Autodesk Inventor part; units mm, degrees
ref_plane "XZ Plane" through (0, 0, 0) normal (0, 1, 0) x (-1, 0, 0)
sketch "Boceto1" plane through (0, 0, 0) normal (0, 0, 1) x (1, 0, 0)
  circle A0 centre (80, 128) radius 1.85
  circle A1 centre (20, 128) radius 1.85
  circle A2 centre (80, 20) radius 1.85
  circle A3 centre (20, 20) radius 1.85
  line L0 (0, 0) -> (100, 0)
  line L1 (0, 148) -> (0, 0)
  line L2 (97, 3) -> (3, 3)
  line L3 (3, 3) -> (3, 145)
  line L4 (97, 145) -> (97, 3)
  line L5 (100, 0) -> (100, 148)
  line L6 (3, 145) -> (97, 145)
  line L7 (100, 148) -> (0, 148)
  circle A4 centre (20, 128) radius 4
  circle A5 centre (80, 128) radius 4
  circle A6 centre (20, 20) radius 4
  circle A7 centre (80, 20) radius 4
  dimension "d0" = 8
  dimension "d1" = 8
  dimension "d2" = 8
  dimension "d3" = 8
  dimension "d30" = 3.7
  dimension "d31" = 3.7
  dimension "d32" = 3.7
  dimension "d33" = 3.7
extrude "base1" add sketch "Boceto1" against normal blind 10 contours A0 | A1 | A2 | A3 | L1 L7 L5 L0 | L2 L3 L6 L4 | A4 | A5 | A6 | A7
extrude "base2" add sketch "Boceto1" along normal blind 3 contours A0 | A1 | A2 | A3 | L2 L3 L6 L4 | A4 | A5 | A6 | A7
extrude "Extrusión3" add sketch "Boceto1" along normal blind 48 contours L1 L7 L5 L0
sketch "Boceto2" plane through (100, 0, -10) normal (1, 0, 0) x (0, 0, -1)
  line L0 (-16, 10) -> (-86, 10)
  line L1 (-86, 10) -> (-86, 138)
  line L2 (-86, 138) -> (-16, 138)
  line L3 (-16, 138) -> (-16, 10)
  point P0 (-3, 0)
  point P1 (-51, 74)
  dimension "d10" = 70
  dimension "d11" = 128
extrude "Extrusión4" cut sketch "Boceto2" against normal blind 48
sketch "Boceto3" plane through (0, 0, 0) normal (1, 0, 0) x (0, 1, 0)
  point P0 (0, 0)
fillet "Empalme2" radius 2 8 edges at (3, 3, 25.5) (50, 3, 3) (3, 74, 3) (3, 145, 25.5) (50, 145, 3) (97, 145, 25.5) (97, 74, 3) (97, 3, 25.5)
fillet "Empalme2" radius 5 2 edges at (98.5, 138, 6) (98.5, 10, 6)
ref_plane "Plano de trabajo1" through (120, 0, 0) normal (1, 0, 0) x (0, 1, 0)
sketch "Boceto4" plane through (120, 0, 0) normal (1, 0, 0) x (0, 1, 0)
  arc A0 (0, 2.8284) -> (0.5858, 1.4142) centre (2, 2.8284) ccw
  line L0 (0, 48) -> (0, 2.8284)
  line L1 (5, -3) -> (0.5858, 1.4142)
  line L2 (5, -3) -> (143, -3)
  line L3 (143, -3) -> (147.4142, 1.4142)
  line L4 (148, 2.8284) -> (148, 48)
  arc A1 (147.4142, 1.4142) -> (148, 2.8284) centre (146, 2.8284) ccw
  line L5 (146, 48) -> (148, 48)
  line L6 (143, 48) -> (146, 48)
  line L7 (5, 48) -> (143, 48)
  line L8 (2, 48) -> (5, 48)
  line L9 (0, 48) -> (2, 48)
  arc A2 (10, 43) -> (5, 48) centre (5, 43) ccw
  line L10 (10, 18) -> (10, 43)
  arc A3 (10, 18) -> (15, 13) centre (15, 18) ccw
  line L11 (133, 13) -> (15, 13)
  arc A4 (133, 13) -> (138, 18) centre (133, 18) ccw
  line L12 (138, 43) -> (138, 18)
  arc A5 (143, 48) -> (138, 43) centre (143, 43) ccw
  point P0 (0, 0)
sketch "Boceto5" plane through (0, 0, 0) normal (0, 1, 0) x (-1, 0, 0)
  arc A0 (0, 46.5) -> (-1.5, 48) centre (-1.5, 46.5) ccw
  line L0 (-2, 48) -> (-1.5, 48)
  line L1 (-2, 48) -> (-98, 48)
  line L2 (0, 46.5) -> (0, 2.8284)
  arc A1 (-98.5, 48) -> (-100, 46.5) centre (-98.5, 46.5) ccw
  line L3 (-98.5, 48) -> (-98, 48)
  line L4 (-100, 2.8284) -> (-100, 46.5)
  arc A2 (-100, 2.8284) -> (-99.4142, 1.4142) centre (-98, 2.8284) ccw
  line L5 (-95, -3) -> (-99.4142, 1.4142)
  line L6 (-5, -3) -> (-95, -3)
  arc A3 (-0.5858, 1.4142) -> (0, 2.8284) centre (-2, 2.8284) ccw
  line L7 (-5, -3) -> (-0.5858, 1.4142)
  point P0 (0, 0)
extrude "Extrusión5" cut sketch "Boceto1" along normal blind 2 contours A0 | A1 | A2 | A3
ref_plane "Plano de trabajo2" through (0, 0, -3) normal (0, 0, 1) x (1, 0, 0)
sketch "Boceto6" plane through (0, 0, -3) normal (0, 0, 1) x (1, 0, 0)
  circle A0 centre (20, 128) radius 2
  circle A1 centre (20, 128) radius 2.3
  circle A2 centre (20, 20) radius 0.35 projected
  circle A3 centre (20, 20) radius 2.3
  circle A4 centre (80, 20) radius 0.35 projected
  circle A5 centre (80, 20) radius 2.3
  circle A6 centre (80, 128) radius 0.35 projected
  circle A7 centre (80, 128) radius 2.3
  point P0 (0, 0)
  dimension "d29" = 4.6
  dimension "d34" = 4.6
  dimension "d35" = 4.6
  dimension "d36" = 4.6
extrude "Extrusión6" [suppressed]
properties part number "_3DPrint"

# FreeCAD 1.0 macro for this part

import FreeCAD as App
import Part
import Sketcher
from FreeCAD import Vector


def edges_at(feature, points):
    """Names of the edges that pass closest to the given points."""
    edges = feature.Shape.Edges
    near = lambda p: min(range(len(edges)), key=lambda i: edges[i].distToShape(Part.Vertex(*p))[0])
    return sorted({f"Edge{near(p) + 1}" for p in points})

doc = App.newDocument("Part")
body = doc.addObject("PartDesign::Body", "Body")

sketch1 = doc.addObject("Sketcher::SketchObject", "Sketch")
body.addObject(sketch1)
sketch1.AttachmentSupport = (doc.XY_Plane, [""])
sketch1.MapMode = "FlatFace"
sketch1.addGeometry(Part.LineSegment(Vector(0, 148, 0), Vector(0, 0, 0)), False)
sketch1.addGeometry(Part.LineSegment(Vector(0, 0, 0), Vector(100, 0, 0)), False)
sketch1.addGeometry(Part.LineSegment(Vector(100, 0, 0), Vector(100, 148, 0)), False)
sketch1.addGeometry(Part.LineSegment(Vector(100, 148, 0), Vector(0, 148, 0)), False)
sketch1.addConstraint(Sketcher.Constraint("Coincident", 0, 2, 1, 1))
sketch1.addConstraint(Sketcher.Constraint("Coincident", 1, 2, 2, 1))
sketch1.addConstraint(Sketcher.Constraint("Coincident", 2, 2, 3, 1))
sketch1.addConstraint(Sketcher.Constraint("Coincident", 3, 2, 0, 1))
sketch1.addConstraint(Sketcher.Constraint("Vertical", 0))
sketch1.addConstraint(Sketcher.Constraint("Horizontal", 1))
sketch1.addConstraint(Sketcher.Constraint("Vertical", 2))
sketch1.addConstraint(Sketcher.Constraint("Horizontal", 3))
sketch1.addConstraint(Sketcher.Constraint("Coincident", 0, 2, -1, 1))
sketch1.addConstraint(Sketcher.Constraint("DistanceX", 1, 1, 1, 2, 100.0))
sketch1.addConstraint(Sketcher.Constraint("DistanceY", 0, 2, 0, 1, 148.0))
pad1 = doc.addObject("PartDesign::Pad", "Pad")
body.addObject(pad1)
pad1.Profile = sketch1
pad1.Length = 10
pad1.Reversed = True

sketch2 = doc.addObject("Sketcher::SketchObject", "Sketch001")
body.addObject(sketch2)
sketch2.AttachmentSupport = (doc.XY_Plane, [""])
sketch2.MapMode = "FlatFace"
sketch2.addGeometry(Part.LineSegment(Vector(3, 3, 0), Vector(97, 3, 0)), False)
sketch2.addGeometry(Part.LineSegment(Vector(97, 3, 0), Vector(97, 145, 0)), False)
sketch2.addGeometry(Part.LineSegment(Vector(97, 145, 0), Vector(3, 145, 0)), False)
sketch2.addGeometry(Part.LineSegment(Vector(3, 145, 0), Vector(3, 3, 0)), False)
sketch2.addConstraint(Sketcher.Constraint("Coincident", 0, 2, 1, 1))
sketch2.addConstraint(Sketcher.Constraint("Coincident", 1, 2, 2, 1))
sketch2.addConstraint(Sketcher.Constraint("Coincident", 2, 2, 3, 1))
sketch2.addConstraint(Sketcher.Constraint("Coincident", 3, 2, 0, 1))
sketch2.addConstraint(Sketcher.Constraint("Horizontal", 0))
sketch2.addConstraint(Sketcher.Constraint("Vertical", 1))
sketch2.addConstraint(Sketcher.Constraint("Horizontal", 2))
sketch2.addConstraint(Sketcher.Constraint("Vertical", 3))
sketch2.addConstraint(Sketcher.Constraint("DistanceX", 0, 1, 0, 2, 94.0))
sketch2.addConstraint(Sketcher.Constraint("DistanceY", 1, 1, 1, 2, 142.0))
sketch2.addConstraint(Sketcher.Constraint("DistanceX", -1, 1, 0, 2, 97.0))
sketch2.addConstraint(Sketcher.Constraint("DistanceY", -1, 1, 0, 2, 3.0))
pad2 = doc.addObject("PartDesign::Pad", "Pad001")
body.addObject(pad2)
pad2.Profile = sketch2
pad2.Length = 3

sketch3 = doc.addObject("Sketcher::SketchObject", "Sketch002")
body.addObject(sketch3)
sketch3.AttachmentSupport = (doc.XY_Plane, [""])
sketch3.MapMode = "FlatFace"
sketch3.addGeometry(Part.LineSegment(Vector(0, 148, 0), Vector(0, 0, 0)), False)
sketch3.addGeometry(Part.LineSegment(Vector(0, 0, 0), Vector(100, 0, 0)), False)
sketch3.addGeometry(Part.LineSegment(Vector(100, 0, 0), Vector(100, 148, 0)), False)
sketch3.addGeometry(Part.LineSegment(Vector(100, 148, 0), Vector(0, 148, 0)), False)
sketch3.addGeometry(Part.LineSegment(Vector(97, 145, 0), Vector(97, 3, 0)), False)
sketch3.addGeometry(Part.LineSegment(Vector(97, 3, 0), Vector(3, 3, 0)), False)
sketch3.addGeometry(Part.LineSegment(Vector(3, 3, 0), Vector(3, 145, 0)), False)
sketch3.addGeometry(Part.LineSegment(Vector(3, 145, 0), Vector(97, 145, 0)), False)
sketch3.addConstraint(Sketcher.Constraint("Coincident", 0, 2, 1, 1))
sketch3.addConstraint(Sketcher.Constraint("Coincident", 1, 2, 2, 1))
sketch3.addConstraint(Sketcher.Constraint("Coincident", 2, 2, 3, 1))
sketch3.addConstraint(Sketcher.Constraint("Coincident", 3, 2, 0, 1))
sketch3.addConstraint(Sketcher.Constraint("Coincident", 4, 2, 5, 1))
sketch3.addConstraint(Sketcher.Constraint("Coincident", 5, 2, 6, 1))
sketch3.addConstraint(Sketcher.Constraint("Coincident", 6, 2, 7, 1))
sketch3.addConstraint(Sketcher.Constraint("Coincident", 7, 2, 4, 1))
sketch3.addConstraint(Sketcher.Constraint("Vertical", 0))
sketch3.addConstraint(Sketcher.Constraint("Horizontal", 1))
sketch3.addConstraint(Sketcher.Constraint("Vertical", 2))
sketch3.addConstraint(Sketcher.Constraint("Horizontal", 3))
sketch3.addConstraint(Sketcher.Constraint("Vertical", 4))
sketch3.addConstraint(Sketcher.Constraint("Horizontal", 5))
sketch3.addConstraint(Sketcher.Constraint("Vertical", 6))
sketch3.addConstraint(Sketcher.Constraint("Horizontal", 7))
sketch3.addConstraint(Sketcher.Constraint("Coincident", 0, 2, -1, 1))
sketch3.addConstraint(Sketcher.Constraint("DistanceX", 1, 1, 1, 2, 100.0))
sketch3.addConstraint(Sketcher.Constraint("DistanceX", 5, 2, 5, 1, 94.0))
sketch3.addConstraint(Sketcher.Constraint("DistanceY", 0, 2, 0, 1, 148.0))
sketch3.addConstraint(Sketcher.Constraint("DistanceY", 4, 2, 4, 1, 142.0))
sketch3.addConstraint(Sketcher.Constraint("DistanceX", -1, 1, 4, 2, 97.0))
sketch3.addConstraint(Sketcher.Constraint("DistanceY", -1, 1, 4, 2, 3.0))
pad3 = doc.addObject("PartDesign::Pad", "Pad002")
body.addObject(pad3)
pad3.Profile = sketch3
pad3.Length = 48

sketch4 = doc.addObject("Sketcher::SketchObject", "Sketch003")
body.addObject(sketch4)
sketch4.AttachmentSupport = (doc.YZ_Plane, [""])
sketch4.MapMode = "FlatFace"
sketch4.AttachmentOffset = App.Placement(Vector(0, 0, 100), App.Rotation())
sketch4.addGeometry(Part.LineSegment(Vector(10, 76, 0), Vector(10, 6, 0)), False)
sketch4.addGeometry(Part.LineSegment(Vector(10, 6, 0), Vector(138, 6, 0)), False)
sketch4.addGeometry(Part.LineSegment(Vector(138, 6, 0), Vector(138, 76, 0)), False)
sketch4.addGeometry(Part.LineSegment(Vector(138, 76, 0), Vector(10, 76, 0)), False)
sketch4.addConstraint(Sketcher.Constraint("Coincident", 0, 2, 1, 1))
sketch4.addConstraint(Sketcher.Constraint("Coincident", 1, 2, 2, 1))
sketch4.addConstraint(Sketcher.Constraint("Coincident", 2, 2, 3, 1))
sketch4.addConstraint(Sketcher.Constraint("Coincident", 3, 2, 0, 1))
sketch4.addConstraint(Sketcher.Constraint("Vertical", 0))
sketch4.addConstraint(Sketcher.Constraint("Horizontal", 1))
sketch4.addConstraint(Sketcher.Constraint("Vertical", 2))
sketch4.addConstraint(Sketcher.Constraint("Horizontal", 3))
sketch4.addConstraint(Sketcher.Constraint("DistanceX", 1, 1, 1, 2, 128.0))
sketch4.addConstraint(Sketcher.Constraint("DistanceY", 0, 2, 0, 1, 70.0))
sketch4.addConstraint(Sketcher.Constraint("DistanceX", -1, 1, 0, 2, 10.0))
sketch4.addConstraint(Sketcher.Constraint("DistanceY", -1, 1, 0, 2, 6.0))
pocket1 = doc.addObject("PartDesign::Pocket", "Pocket")
body.addObject(pocket1)
pocket1.Profile = sketch4
pocket1.Length = 48
doc.recompute()

fillet = doc.addObject("PartDesign::Fillet", "Fillet")
body.addObject(fillet)
fillet.Base = (pocket1, edges_at(pocket1, [
    (3, 3, 25.5),
    (50, 3, 3),
    (3, 74, 3),
    (3, 145, 25.5),
    (50, 145, 3),
    (97, 145, 25.5),
    (97, 74, 3),
    (97, 3, 25.5),
]))
fillet.Radius = 2
doc.recompute()

fillet2 = doc.addObject("PartDesign::Fillet", "Fillet001")
body.addObject(fillet2)
fillet2.Base = (fillet, edges_at(fillet, [(98.5, 138, 6), (98.5, 10, 6)]))
fillet2.Radius = 5

sketch5 = doc.addObject("Sketcher::SketchObject", "Sketch004")
body.addObject(sketch5)
sketch5.AttachmentSupport = (doc.XY_Plane, [""])
sketch5.MapMode = "FlatFace"
sketch5.addGeometry(Part.Circle(Vector(80, 128, 0), Vector(0, 0, 1), 1.9), False)
sketch5.addGeometry(Part.Circle(Vector(20, 128, 0), Vector(0, 0, 1), 1.9), False)
sketch5.addGeometry(Part.Circle(Vector(80, 20, 0), Vector(0, 0, 1), 1.9), False)
sketch5.addGeometry(Part.Circle(Vector(20, 20, 0), Vector(0, 0, 1), 1.9), False)
sketch5.addConstraint(Sketcher.Constraint("Equal", 0, 1))
sketch5.addConstraint(Sketcher.Constraint("Equal", 1, 2))
sketch5.addConstraint(Sketcher.Constraint("Equal", 2, 3))
sketch5.addConstraint(Sketcher.Constraint("Horizontal", 0, 3, 1, 3))
sketch5.addConstraint(Sketcher.Constraint("Horizontal", 2, 3, 3, 3))
sketch5.addConstraint(Sketcher.Constraint("Vertical", 0, 3, 2, 3))
sketch5.addConstraint(Sketcher.Constraint("Vertical", 1, 3, 3, 3))
sketch5.addConstraint(Sketcher.Constraint("Diameter", 0, 3.7))
sketch5.addConstraint(Sketcher.Constraint("DistanceX", -1, 1, 0, 3, 80.0))
sketch5.addConstraint(Sketcher.Constraint("DistanceY", -1, 1, 0, 3, 128.0))
sketch5.addConstraint(Sketcher.Constraint("DistanceX", -1, 1, 1, 3, 20.0))
sketch5.addConstraint(Sketcher.Constraint("DistanceY", -1, 1, 2, 3, 20.0))
pocket2 = doc.addObject("PartDesign::Pocket", "Pocket001")
body.addObject(pocket2)
pocket2.Profile = sketch5
pocket2.Length = 2
pocket2.Reversed = True

doc.recompute()
